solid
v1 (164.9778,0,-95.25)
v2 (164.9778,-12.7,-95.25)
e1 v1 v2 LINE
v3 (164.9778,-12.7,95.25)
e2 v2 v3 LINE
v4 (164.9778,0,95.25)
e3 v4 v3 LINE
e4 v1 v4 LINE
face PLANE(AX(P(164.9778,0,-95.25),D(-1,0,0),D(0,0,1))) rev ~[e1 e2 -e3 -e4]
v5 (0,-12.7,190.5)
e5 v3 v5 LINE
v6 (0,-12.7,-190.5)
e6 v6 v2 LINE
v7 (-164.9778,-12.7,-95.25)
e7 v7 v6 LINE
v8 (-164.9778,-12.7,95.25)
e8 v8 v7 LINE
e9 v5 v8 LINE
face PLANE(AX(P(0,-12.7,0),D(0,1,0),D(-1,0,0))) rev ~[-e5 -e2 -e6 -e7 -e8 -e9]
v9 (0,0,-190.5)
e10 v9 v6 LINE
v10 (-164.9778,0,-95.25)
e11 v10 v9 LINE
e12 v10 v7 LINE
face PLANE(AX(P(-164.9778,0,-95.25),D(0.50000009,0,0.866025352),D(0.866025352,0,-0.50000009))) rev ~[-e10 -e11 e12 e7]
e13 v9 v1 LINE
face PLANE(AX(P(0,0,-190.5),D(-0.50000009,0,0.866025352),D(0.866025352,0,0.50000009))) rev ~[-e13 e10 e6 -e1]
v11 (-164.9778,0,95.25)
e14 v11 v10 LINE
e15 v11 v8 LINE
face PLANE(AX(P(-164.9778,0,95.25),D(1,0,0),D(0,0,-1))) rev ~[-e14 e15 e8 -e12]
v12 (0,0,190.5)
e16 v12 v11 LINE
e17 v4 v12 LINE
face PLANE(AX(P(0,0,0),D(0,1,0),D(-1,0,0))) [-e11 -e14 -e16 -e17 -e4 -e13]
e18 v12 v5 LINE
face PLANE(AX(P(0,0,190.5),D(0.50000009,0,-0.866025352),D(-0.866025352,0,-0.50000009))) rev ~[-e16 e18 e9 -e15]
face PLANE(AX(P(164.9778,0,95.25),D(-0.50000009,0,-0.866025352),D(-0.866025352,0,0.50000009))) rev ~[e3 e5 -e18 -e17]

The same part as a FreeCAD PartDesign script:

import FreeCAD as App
import Part
import Sketcher

V = App.Vector
Q = App.Units.Quantity

doc = App.newDocument("Part")
body = doc.addObject("PartDesign::Body", "Body")

# Sketch on XZ plane
sketch1 = body.newObject("Sketcher::SketchObject", "Sketch")
sketch1.AttachmentSupport = (doc.getObject("XZ_Plane"), [""])
sketch1.MapMode = "FlatFace"
sketch1.addGeometry(Part.LineSegment(V(165, -95, 0), V(0, -190, 0)), False)
sketch1.addGeometry(Part.LineSegment(V(0, -190, 0), V(-165, -95, 0)), False)
sketch1.addGeometry(Part.LineSegment(V(-165, -95, 0), V(-165, 95, 0)), False)
sketch1.addGeometry(Part.LineSegment(V(-165, 95, 0), V(0, 190, 0)), False)
sketch1.addGeometry(Part.LineSegment(V(0, 190, 0), V(165, 95, 0)), False)
sketch1.addGeometry(Part.LineSegment(V(165, 95, 0), V(165, -95, 0)), False)
sketch1.addConstraint(Sketcher.Constraint("Coincident", 0, 2, 1, 1))
sketch1.addConstraint(Sketcher.Constraint("Coincident", 1, 2, 2, 1))
sketch1.addConstraint(Sketcher.Constraint("Coincident", 2, 2, 3, 1))
sketch1.addConstraint(Sketcher.Constraint("Coincident", 3, 2, 4, 1))
sketch1.addConstraint(Sketcher.Constraint("Coincident", 4, 2, 5, 1))
sketch1.addConstraint(Sketcher.Constraint("Coincident", 5, 2, 0, 1))
sketch1.addConstraint(Sketcher.Constraint("Vertical", 2))
sketch1.addConstraint(Sketcher.Constraint("Vertical", 5))
sketch1.addConstraint(Sketcher.Constraint("Symmetric", 0, 2, 3, 2, -1, 1))
sketch1.addConstraint(Sketcher.Constraint("Symmetric", 1, 2, 4, 2, -1, 1))
sketch1.addConstraint(Sketcher.Constraint("PointOnObject", 0, 2, -2))
sketch1.addConstraint(Sketcher.Constraint("Parallel", 0, 3))
sketch1.addConstraint(Sketcher.Constraint("Horizontal", 2, 2, 4, 2))
sketch1.addConstraint(Sketcher.Constraint("DistanceY", 2, 1, 2, 2, Q("7.5 in")))
sketch1.addConstraint(Sketcher.Constraint("Distance", 0, Q("7.5 in")))
sketch1.addConstraint(Sketcher.Constraint("DistanceY", 0, 2, -1, 1, Q("7.5 in")))
pad1 = body.newObject("PartDesign::Pad", "Pad")
pad1.Profile = sketch1
pad1.Length = Q("0.5 in")

doc.recompute()
